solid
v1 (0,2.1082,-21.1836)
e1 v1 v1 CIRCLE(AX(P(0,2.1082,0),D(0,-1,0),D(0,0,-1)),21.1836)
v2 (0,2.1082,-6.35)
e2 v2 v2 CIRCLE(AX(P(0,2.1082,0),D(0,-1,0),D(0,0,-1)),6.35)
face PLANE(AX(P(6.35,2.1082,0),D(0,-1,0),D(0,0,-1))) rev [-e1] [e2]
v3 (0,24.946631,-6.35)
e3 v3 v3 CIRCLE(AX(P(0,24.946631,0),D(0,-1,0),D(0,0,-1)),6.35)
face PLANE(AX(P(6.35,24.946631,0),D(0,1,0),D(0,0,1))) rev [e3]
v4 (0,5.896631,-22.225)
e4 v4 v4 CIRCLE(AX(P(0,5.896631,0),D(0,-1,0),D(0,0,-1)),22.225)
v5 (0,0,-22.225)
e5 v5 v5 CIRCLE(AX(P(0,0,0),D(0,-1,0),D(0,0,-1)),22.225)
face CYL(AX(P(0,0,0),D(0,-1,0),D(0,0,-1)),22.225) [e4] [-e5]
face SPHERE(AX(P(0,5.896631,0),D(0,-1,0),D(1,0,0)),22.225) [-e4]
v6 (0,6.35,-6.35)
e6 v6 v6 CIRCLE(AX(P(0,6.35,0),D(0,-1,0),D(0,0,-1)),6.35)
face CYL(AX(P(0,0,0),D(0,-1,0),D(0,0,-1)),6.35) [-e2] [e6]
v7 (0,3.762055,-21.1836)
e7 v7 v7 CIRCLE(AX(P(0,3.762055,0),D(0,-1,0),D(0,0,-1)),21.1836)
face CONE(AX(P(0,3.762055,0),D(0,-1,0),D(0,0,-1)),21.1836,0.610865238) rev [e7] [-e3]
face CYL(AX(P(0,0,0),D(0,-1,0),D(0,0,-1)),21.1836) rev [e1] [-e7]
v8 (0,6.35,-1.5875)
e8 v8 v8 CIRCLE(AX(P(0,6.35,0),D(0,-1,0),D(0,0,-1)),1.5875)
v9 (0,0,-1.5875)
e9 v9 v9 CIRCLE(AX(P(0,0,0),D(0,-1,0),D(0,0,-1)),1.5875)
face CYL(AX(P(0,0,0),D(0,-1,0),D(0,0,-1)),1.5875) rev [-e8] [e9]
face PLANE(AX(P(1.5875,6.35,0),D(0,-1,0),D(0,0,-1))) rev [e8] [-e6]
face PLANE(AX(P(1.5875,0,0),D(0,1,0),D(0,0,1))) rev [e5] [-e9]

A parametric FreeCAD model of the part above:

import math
import FreeCAD as App
import Part
import Sketcher

V = App.Vector
Q = App.Units.Quantity

doc = App.newDocument("Part")
params = doc.addObject("Spreadsheet::Sheet", "Params")
for row, (alias, value) in enumerate([
    ("sketch1_radius", "0.875 in"),
    ("sketch1_width", "0.25 in"),
    ("sketch1_width2", "0.8125 in"),
    ("sketch1_width3", "0.584 in"),
    ("sketch1_height", "0.167 in"),
    ("revolution_angle", "360 deg"),
], start=1):
    params.set(f"A{row}", alias)
    params.set(f"B{row}", "=" + value)
    params.setAlias(f"B{row}", alias)

body = doc.addObject("PartDesign::Body", "Body")

# Sketch on XY plane
sketch1 = doc.addObject("Sketcher::SketchObject", "Sketch")
body.addObject(sketch1)
sketch1.AttachmentSupport = (doc.XY_Plane, [""])
sketch1.MapMode = "FlatFace"
sketch1.addGeometry(Part.LineSegment(V(-22.2, 0, 0), V(-1.6, 0, 0)), False)
sketch1.addGeometry(Part.LineSegment(V(-1.6, 0, 0), V(-1.6, 6.3, 0)), False)
sketch1.addGeometry(Part.LineSegment(V(-1.6, 6.3, 0), V(-6.3, 6.3, 0)), False)
sketch1.addGeometry(Part.LineSegment(V(-6.3, 6.3, 0), V(-6.3, 2.1, 0)), False)
sketch1.addGeometry(Part.LineSegment(V(-6.3, 2.1, 0), V(-21.2, 2.1, 0)), False)
sketch1.addGeometry(Part.LineSegment(V(-21.2, 2.1, 0), V(-21.2, 3.8, 0)), False)
sketch1.addGeometry(Part.LineSegment(V(-21.2, 3.8, 0), V(-6.3, 24.9, 0)), False)
sketch1.addGeometry(Part.LineSegment(V(-6.3, 24.9, 0), V(0, 24.9, 0)), False)
sketch1.addGeometry(Part.LineSegment(V(0, 24.9, 0), V(0, 28.1, 0)), False)
sketch1.addGeometry(Part.ArcOfCircle(Part.Circle(V(0, 5.9, 0), V(0, 0, 1), 22.2), math.radians(90), math.radians(180)), False)
sketch1.addGeometry(Part.LineSegment(V(-22.2, 5.9, 0), V(-22.2, 0, 0)), False)
sketch1.addConstraint(Sketcher.Constraint("Coincident", 0, 2, 1, 1))
sketch1.addConstraint(Sketcher.Constraint("Coincident", 1, 2, 2, 1))
sketch1.addConstraint(Sketcher.Constraint("Coincident", 2, 2, 3, 1))
sketch1.addConstraint(Sketcher.Constraint("Coincident", 3, 2, 4, 1))
sketch1.addConstraint(Sketcher.Constraint("Coincident", 4, 2, 5, 1))
sketch1.addConstraint(Sketcher.Constraint("Coincident", 5, 2, 6, 1))
sketch1.addConstraint(Sketcher.Constraint("Coincident", 6, 2, 7, 1))
sketch1.addConstraint(Sketcher.Constraint("Coincident", 7, 2, 8, 1))
sketch1.addConstraint(Sketcher.Constraint("Coincident", 8, 2, 9, 1))
sketch1.addConstraint(Sketcher.Constraint("Tangent", 9, 2, 10, 1))
sketch1.addConstraint(Sketcher.Constraint("Coincident", 10, 2, 0, 1))
sketch1.addConstraint(Sketcher.Constraint("Horizontal", 0))
sketch1.addConstraint(Sketcher.Constraint("Vertical", 1))
sketch1.addConstraint(Sketcher.Constraint("Horizontal", 2))
sketch1.addConstraint(Sketcher.Constraint("Vertical", 3))
sketch1.addConstraint(Sketcher.Constraint("Horizontal", 4))
sketch1.addConstraint(Sketcher.Constraint("Vertical", 5))
sketch1.addConstraint(Sketcher.Constraint("Horizontal", 7))
sketch1.addConstraint(Sketcher.Constraint("Vertical", 8))
sketch1.addConstraint(Sketcher.Constraint("Vertical", 10))
sketch1.addConstraint(Sketcher.Constraint("PointOnObject", 9, 3, -2))
sketch1.addConstraint(Sketcher.Constraint("PointOnObject", 0, 2, -1))
sketch1.addConstraint(Sketcher.Constraint("PointOnObject", 7, 2, -2))
sketch1.addConstraint(Sketcher.Constraint("Vertical", 3, 2, 6, 2))
sketch1.addConstraint(Sketcher.Constraint("Equal", 7, 1))
sketch1.addConstraint(Sketcher.Constraint("Angle", 6, Q("55 deg")))
sketch1.addConstraint(Sketcher.Constraint("Radius", 9, Q("0.875 in")))
sketch1.addConstraint(Sketcher.Constraint("DistanceX", 7, 1, 7, 2, Q("0.25 in")))
sketch1.addConstraint(Sketcher.Constraint("DistanceX", 0, 1, 0, 2, Q("0.8125 in")))
sketch1.addConstraint(Sketcher.Constraint("DistanceX", 4, 2, 4, 1, Q("0.584 in")))
sketch1.addConstraint(Sketcher.Constraint("DistanceY", 3, 2, 3, 1, Q("0.167 in")))
sketch1.addConstraint(Sketcher.Constraint("DistanceY", 8, 1, 8, 2, Q("0.125 in")))
sketch1.addConstraint(Sketcher.Constraint("DistanceY", 10, 2, 10, 1, 5.896631))
sketch1.setExpression("Constraints[26]", "Params.sketch1_radius")
sketch1.setExpression("Constraints[27]", "Params.sketch1_width")
sketch1.setExpression("Constraints[28]", "Params.sketch1_width2")
sketch1.setExpression("Constraints[29]", "Params.sketch1_width3")
sketch1.setExpression("Constraints[30]", "Params.sketch1_height")
revolution = doc.addObject("PartDesign::Revolution", "Revolution")
body.addObject(revolution)
revolution.Profile = sketch1
revolution.ReferenceAxis = (sketch1, ["V_Axis"])
revolution.setExpression("Angle", "Params.revolution_angle")

doc.recompute()
